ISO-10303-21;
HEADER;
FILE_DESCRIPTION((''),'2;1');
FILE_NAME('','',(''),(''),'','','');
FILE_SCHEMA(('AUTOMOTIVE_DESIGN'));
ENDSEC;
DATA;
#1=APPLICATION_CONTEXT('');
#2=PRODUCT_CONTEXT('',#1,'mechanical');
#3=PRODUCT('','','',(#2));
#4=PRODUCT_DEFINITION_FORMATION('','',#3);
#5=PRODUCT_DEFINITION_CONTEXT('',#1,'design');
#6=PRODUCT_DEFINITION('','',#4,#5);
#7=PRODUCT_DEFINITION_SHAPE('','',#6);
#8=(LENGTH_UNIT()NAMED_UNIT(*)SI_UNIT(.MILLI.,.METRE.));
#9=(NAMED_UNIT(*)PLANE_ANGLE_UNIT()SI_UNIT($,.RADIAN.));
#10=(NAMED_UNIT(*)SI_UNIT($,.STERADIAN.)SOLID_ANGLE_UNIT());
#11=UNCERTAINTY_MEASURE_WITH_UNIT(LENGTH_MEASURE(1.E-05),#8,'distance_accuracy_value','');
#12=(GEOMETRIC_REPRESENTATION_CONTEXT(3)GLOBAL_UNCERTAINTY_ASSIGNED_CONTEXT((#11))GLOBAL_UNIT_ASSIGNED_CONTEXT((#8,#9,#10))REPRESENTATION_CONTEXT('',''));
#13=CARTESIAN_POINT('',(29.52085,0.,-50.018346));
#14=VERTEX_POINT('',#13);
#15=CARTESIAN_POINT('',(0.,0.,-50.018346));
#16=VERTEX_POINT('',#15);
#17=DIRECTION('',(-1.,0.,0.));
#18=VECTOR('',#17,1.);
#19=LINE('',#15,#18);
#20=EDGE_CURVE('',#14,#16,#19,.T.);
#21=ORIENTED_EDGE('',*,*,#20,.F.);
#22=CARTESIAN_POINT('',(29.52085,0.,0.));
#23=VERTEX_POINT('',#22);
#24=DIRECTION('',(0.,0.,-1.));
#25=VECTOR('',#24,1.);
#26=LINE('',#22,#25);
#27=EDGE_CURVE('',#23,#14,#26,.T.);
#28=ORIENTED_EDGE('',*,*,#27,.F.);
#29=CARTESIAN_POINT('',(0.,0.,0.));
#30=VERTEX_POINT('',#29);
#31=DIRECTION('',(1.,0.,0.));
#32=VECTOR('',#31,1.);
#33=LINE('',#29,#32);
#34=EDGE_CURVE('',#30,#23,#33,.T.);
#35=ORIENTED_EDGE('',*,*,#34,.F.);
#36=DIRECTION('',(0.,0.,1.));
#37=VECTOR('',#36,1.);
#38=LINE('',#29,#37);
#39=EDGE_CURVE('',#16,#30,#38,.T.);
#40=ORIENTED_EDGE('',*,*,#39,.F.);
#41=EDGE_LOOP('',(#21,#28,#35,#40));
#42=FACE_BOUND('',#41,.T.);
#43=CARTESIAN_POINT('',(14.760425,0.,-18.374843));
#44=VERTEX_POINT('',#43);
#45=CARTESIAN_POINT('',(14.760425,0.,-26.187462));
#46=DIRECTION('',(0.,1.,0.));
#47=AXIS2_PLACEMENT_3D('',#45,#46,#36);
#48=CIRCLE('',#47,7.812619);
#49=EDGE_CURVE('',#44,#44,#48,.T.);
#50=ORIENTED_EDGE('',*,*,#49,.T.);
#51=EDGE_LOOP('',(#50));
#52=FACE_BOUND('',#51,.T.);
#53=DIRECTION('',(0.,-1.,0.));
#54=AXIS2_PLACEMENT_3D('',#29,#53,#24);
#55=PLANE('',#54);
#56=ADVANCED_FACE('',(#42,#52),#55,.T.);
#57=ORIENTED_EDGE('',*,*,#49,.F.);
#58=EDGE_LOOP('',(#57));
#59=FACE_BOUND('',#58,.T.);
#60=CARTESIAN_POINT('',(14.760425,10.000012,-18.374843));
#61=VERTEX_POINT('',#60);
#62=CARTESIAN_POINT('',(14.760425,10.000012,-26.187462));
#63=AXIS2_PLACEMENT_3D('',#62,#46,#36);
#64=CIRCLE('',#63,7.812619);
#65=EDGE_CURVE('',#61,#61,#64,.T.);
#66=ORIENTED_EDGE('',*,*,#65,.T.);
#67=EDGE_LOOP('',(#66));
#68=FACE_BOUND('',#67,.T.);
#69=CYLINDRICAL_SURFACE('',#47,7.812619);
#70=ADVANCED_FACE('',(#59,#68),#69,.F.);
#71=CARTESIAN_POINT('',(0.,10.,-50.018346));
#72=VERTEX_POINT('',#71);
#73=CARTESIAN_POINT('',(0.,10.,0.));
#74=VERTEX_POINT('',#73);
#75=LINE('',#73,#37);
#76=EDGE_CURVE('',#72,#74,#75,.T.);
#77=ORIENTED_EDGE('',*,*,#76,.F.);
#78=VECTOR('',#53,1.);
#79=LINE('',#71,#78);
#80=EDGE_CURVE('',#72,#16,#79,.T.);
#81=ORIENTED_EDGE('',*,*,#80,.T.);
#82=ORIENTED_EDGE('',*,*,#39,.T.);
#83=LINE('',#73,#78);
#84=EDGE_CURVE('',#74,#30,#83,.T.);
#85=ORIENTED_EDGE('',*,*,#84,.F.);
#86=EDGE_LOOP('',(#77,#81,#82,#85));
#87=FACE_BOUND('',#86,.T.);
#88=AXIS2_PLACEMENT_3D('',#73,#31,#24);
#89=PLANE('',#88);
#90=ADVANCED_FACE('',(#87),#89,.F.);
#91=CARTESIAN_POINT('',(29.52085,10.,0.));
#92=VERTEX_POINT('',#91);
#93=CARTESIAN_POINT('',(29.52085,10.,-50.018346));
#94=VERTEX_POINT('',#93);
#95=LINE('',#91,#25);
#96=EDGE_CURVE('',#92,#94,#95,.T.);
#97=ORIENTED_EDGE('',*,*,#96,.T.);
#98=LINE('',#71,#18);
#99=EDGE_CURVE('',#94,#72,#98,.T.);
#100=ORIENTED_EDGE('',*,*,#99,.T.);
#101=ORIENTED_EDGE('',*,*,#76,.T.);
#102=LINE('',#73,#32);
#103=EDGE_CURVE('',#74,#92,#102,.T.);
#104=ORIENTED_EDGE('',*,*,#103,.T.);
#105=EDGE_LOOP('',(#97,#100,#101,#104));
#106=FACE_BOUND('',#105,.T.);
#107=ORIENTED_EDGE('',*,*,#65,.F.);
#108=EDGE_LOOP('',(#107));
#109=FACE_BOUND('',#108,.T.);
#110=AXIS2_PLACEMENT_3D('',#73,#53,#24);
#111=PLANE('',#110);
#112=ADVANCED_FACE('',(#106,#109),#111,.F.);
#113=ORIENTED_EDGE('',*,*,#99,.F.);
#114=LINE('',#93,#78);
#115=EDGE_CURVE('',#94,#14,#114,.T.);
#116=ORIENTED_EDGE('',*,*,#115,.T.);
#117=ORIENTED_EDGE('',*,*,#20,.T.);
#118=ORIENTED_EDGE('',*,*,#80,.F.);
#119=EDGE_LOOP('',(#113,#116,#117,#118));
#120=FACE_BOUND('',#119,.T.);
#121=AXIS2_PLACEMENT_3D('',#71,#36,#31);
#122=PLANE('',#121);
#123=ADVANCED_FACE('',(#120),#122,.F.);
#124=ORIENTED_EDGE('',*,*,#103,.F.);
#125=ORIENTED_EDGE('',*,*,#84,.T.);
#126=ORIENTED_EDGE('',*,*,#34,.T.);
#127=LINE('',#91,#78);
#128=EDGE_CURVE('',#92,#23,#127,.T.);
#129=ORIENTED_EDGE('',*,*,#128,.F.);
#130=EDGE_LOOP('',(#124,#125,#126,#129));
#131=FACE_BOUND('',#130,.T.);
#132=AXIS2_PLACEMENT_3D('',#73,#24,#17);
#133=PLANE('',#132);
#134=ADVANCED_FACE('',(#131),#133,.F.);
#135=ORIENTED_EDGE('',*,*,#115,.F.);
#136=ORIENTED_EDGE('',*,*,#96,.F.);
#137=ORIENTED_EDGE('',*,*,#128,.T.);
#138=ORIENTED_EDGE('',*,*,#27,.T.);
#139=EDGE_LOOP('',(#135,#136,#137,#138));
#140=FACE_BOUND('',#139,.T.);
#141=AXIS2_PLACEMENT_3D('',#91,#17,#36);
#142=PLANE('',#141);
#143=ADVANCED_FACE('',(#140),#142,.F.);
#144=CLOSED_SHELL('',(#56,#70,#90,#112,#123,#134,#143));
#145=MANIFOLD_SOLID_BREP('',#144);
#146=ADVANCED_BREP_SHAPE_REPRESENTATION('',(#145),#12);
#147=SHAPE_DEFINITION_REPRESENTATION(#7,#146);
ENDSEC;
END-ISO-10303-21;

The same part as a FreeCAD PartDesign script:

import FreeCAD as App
import Part
import Sketcher

V = App.Vector

doc = App.newDocument("Part")
body = doc.addObject("PartDesign::Body", "Body")

# Sketch on XZ plane
sketch1 = body.newObject("Sketcher::SketchObject", "Sketch")
sketch1.AttachmentSupport = (doc.getObject("XZ_Plane"), [""])
sketch1.MapMode = "FlatFace"
sketch1.addGeometry(Part.LineSegment(V(0, -50, 0), V(0, 0, 0)), False)
sketch1.addGeometry(Part.LineSegment(V(0, 0, 0), V(30, 0, 0)), False)
sketch1.addGeometry(Part.LineSegment(V(30, 0, 0), V(30, -50, 0)), False)
sketch1.addGeometry(Part.LineSegment(V(30, -50, 0), V(0, -50, 0)), False)
sketch1.addConstraint(Sketcher.Constraint("Coincident", 0, 2, 1, 1))
sketch1.addConstraint(Sketcher.Constraint("Coincident", 1, 2, 2, 1))
sketch1.addConstraint(Sketcher.Constraint("Coincident", 2, 2, 3, 1))
sketch1.addConstraint(Sketcher.Constraint("Coincident", 3, 2, 0, 1))
sketch1.addConstraint(Sketcher.Constraint("Vertical", 0))
sketch1.addConstraint(Sketcher.Constraint("Horizontal", 1))
sketch1.addConstraint(Sketcher.Constraint("Vertical", 2))
sketch1.addConstraint(Sketcher.Constraint("Horizontal", 3))
sketch1.addConstraint(Sketcher.Constraint("Coincident", 0, 2, -1, 1))
sketch1.addConstraint(Sketcher.Constraint("DistanceX", 1, 1, 1, 2, 29.52085))
sketch1.addConstraint(Sketcher.Constraint("DistanceY", 0, 1, 0, 2, 50.018346))
pad1 = body.newObject("PartDesign::Pad", "Pad")
pad1.Profile = sketch1
pad1.Length = 10
pad1.Reversed = True

# Sketch on XZ plane
sketch2 = body.newObject("Sketcher::SketchObject", "Sketch001")
sketch2.AttachmentSupport = (doc.getObject("XZ_Plane"), [""])
sketch2.MapMode = "FlatFace"
sketch2.AttachmentOffset = App.Placement(V(0, 0, -10), App.Rotation())
sketch2.addGeometry(Part.Circle(V(15, -26, 0), V(0, 0, 1), 8), False)
sketch2.addConstraint(Sketcher.Constraint("Diameter", 0, 15.625237))
sketch2.addConstraint(Sketcher.Constraint("DistanceY", 0, 3, -1, 1, 26.187462))
sketch2.addConstraint(Sketcher.Constraint("DistanceX", -1, 1, 0, 3, 14.760425))
pocket1 = body.newObject("PartDesign::Pocket", "Pocket")
pocket1.Profile = sketch2
pocket1.Type = "ThroughAll"
pocket1.Midplane = True

doc.recompute()
